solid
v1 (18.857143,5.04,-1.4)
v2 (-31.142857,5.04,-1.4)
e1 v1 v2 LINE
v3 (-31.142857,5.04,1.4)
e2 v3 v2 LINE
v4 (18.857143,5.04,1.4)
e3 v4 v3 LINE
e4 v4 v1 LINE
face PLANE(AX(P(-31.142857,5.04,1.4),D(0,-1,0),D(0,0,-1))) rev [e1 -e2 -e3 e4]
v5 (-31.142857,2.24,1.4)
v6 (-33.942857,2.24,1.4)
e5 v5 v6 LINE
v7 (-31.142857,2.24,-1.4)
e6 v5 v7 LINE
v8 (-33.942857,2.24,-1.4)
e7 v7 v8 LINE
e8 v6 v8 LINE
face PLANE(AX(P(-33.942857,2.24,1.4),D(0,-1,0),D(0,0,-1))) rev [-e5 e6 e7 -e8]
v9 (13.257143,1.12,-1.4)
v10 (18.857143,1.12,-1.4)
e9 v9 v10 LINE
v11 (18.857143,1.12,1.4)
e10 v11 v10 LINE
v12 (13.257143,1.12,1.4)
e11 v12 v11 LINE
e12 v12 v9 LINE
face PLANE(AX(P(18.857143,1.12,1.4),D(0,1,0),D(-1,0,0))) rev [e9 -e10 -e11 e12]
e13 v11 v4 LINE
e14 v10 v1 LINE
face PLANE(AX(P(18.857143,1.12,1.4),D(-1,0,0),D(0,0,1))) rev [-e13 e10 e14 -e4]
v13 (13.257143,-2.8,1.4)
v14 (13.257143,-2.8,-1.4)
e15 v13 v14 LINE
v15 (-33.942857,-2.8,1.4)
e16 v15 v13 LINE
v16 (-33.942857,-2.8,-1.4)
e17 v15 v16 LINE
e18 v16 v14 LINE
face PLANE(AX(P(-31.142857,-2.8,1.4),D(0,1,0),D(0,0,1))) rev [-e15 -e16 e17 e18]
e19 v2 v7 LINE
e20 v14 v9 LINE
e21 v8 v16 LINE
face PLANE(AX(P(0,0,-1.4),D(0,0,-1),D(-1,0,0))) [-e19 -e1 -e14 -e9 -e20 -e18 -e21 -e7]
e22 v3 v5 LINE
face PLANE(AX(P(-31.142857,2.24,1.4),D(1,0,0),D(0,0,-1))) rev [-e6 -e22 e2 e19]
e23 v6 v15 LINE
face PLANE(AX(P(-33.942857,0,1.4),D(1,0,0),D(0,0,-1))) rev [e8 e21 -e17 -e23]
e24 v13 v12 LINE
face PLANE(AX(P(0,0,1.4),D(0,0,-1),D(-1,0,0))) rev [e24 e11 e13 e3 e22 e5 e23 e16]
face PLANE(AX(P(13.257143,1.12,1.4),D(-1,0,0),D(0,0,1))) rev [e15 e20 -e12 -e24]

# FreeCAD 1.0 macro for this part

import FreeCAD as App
import Part
import Sketcher

V = App.Vector
Q = App.Units.Quantity

doc = App.newDocument("Part")
body = doc.addObject("PartDesign::Body", "Body")

sketch1 = doc.addObject("Sketcher::SketchObject", "Sketch")
body.addObject(sketch1)
sketch1.AttachmentSupport = (doc.XY_Plane, [""])
sketch1.MapMode = "FlatFace"
sketch1.addGeometry([
    Part.LineSegment(V(13.257143, -2.8, 0), V(13.257143, 1.12, 0)),
    Part.LineSegment(V(13.257143, 1.12, 0), V(18.857143, 1.12, 0)),
    Part.LineSegment(V(18.857143, 1.12, 0), V(18.857143, 5.04, 0)),
    Part.LineSegment(V(18.857143, 5.04, 0), V(-31.142857, 5.04, 0)),
    Part.LineSegment(V(-31.142857, 5.04, 0), V(-31.142857, 2.24, 0)),
    Part.LineSegment(V(-31.142857, 2.24, 0), V(-33.942857, 2.24, 0)),
    Part.LineSegment(V(-33.942857, 2.24, 0), V(-33.942857, -2.8, 0)),
    Part.LineSegment(V(-33.942857, -2.8, 0), V(13.257143, -2.8, 0)),
], False)
sketch1.addConstraint([
    Sketcher.Constraint("Coincident", 0, 2, 1, 1),
    Sketcher.Constraint("Coincident", 1, 2, 2, 1),
    Sketcher.Constraint("Coincident", 2, 2, 3, 1),
    Sketcher.Constraint("Coincident", 3, 2, 4, 1),
    Sketcher.Constraint("Coincident", 4, 2, 5, 1),
    Sketcher.Constraint("Coincident", 5, 2, 6, 1),
    Sketcher.Constraint("Coincident", 6, 2, 7, 1),
    Sketcher.Constraint("Coincident", 7, 2, 0, 1),
    Sketcher.Constraint("Vertical", 0),
    Sketcher.Constraint("Horizontal", 1),
    Sketcher.Constraint("Vertical", 2),
    Sketcher.Constraint("Horizontal", 3),
    Sketcher.Constraint("Vertical", 4),
    Sketcher.Constraint("Horizontal", 5),
    Sketcher.Constraint("Vertical", 6),
    Sketcher.Constraint("Horizontal", 7),
    Sketcher.Constraint("Equal", 0, 2),
    Sketcher.Constraint("Equal", 5, 4),
    Sketcher.Constraint("DistanceX", 3, 2, 3, 1, Q("50 mm")),
    Sketcher.Constraint("DistanceX", 1, 1, 1, 2, Q("5.6 mm")),
    Sketcher.Constraint("DistanceX", 5, 2, 5, 1, Q("2.8 mm")),
    Sketcher.Constraint("DistanceY", 0, 1, 0, 2, Q("3.92 mm")),
    Sketcher.Constraint("DistanceY", 6, 2, -1, 1, Q("2.8 mm")),
    Sketcher.Constraint("DistanceX", -1, 1, 0, 2, Q("13.257143 mm")),
])
pad1 = doc.addObject("PartDesign::Pad", "Pad")
body.addObject(pad1)
pad1.Profile = sketch1
pad1.Length = 2.8
pad1.Midplane = True

doc.recompute()
